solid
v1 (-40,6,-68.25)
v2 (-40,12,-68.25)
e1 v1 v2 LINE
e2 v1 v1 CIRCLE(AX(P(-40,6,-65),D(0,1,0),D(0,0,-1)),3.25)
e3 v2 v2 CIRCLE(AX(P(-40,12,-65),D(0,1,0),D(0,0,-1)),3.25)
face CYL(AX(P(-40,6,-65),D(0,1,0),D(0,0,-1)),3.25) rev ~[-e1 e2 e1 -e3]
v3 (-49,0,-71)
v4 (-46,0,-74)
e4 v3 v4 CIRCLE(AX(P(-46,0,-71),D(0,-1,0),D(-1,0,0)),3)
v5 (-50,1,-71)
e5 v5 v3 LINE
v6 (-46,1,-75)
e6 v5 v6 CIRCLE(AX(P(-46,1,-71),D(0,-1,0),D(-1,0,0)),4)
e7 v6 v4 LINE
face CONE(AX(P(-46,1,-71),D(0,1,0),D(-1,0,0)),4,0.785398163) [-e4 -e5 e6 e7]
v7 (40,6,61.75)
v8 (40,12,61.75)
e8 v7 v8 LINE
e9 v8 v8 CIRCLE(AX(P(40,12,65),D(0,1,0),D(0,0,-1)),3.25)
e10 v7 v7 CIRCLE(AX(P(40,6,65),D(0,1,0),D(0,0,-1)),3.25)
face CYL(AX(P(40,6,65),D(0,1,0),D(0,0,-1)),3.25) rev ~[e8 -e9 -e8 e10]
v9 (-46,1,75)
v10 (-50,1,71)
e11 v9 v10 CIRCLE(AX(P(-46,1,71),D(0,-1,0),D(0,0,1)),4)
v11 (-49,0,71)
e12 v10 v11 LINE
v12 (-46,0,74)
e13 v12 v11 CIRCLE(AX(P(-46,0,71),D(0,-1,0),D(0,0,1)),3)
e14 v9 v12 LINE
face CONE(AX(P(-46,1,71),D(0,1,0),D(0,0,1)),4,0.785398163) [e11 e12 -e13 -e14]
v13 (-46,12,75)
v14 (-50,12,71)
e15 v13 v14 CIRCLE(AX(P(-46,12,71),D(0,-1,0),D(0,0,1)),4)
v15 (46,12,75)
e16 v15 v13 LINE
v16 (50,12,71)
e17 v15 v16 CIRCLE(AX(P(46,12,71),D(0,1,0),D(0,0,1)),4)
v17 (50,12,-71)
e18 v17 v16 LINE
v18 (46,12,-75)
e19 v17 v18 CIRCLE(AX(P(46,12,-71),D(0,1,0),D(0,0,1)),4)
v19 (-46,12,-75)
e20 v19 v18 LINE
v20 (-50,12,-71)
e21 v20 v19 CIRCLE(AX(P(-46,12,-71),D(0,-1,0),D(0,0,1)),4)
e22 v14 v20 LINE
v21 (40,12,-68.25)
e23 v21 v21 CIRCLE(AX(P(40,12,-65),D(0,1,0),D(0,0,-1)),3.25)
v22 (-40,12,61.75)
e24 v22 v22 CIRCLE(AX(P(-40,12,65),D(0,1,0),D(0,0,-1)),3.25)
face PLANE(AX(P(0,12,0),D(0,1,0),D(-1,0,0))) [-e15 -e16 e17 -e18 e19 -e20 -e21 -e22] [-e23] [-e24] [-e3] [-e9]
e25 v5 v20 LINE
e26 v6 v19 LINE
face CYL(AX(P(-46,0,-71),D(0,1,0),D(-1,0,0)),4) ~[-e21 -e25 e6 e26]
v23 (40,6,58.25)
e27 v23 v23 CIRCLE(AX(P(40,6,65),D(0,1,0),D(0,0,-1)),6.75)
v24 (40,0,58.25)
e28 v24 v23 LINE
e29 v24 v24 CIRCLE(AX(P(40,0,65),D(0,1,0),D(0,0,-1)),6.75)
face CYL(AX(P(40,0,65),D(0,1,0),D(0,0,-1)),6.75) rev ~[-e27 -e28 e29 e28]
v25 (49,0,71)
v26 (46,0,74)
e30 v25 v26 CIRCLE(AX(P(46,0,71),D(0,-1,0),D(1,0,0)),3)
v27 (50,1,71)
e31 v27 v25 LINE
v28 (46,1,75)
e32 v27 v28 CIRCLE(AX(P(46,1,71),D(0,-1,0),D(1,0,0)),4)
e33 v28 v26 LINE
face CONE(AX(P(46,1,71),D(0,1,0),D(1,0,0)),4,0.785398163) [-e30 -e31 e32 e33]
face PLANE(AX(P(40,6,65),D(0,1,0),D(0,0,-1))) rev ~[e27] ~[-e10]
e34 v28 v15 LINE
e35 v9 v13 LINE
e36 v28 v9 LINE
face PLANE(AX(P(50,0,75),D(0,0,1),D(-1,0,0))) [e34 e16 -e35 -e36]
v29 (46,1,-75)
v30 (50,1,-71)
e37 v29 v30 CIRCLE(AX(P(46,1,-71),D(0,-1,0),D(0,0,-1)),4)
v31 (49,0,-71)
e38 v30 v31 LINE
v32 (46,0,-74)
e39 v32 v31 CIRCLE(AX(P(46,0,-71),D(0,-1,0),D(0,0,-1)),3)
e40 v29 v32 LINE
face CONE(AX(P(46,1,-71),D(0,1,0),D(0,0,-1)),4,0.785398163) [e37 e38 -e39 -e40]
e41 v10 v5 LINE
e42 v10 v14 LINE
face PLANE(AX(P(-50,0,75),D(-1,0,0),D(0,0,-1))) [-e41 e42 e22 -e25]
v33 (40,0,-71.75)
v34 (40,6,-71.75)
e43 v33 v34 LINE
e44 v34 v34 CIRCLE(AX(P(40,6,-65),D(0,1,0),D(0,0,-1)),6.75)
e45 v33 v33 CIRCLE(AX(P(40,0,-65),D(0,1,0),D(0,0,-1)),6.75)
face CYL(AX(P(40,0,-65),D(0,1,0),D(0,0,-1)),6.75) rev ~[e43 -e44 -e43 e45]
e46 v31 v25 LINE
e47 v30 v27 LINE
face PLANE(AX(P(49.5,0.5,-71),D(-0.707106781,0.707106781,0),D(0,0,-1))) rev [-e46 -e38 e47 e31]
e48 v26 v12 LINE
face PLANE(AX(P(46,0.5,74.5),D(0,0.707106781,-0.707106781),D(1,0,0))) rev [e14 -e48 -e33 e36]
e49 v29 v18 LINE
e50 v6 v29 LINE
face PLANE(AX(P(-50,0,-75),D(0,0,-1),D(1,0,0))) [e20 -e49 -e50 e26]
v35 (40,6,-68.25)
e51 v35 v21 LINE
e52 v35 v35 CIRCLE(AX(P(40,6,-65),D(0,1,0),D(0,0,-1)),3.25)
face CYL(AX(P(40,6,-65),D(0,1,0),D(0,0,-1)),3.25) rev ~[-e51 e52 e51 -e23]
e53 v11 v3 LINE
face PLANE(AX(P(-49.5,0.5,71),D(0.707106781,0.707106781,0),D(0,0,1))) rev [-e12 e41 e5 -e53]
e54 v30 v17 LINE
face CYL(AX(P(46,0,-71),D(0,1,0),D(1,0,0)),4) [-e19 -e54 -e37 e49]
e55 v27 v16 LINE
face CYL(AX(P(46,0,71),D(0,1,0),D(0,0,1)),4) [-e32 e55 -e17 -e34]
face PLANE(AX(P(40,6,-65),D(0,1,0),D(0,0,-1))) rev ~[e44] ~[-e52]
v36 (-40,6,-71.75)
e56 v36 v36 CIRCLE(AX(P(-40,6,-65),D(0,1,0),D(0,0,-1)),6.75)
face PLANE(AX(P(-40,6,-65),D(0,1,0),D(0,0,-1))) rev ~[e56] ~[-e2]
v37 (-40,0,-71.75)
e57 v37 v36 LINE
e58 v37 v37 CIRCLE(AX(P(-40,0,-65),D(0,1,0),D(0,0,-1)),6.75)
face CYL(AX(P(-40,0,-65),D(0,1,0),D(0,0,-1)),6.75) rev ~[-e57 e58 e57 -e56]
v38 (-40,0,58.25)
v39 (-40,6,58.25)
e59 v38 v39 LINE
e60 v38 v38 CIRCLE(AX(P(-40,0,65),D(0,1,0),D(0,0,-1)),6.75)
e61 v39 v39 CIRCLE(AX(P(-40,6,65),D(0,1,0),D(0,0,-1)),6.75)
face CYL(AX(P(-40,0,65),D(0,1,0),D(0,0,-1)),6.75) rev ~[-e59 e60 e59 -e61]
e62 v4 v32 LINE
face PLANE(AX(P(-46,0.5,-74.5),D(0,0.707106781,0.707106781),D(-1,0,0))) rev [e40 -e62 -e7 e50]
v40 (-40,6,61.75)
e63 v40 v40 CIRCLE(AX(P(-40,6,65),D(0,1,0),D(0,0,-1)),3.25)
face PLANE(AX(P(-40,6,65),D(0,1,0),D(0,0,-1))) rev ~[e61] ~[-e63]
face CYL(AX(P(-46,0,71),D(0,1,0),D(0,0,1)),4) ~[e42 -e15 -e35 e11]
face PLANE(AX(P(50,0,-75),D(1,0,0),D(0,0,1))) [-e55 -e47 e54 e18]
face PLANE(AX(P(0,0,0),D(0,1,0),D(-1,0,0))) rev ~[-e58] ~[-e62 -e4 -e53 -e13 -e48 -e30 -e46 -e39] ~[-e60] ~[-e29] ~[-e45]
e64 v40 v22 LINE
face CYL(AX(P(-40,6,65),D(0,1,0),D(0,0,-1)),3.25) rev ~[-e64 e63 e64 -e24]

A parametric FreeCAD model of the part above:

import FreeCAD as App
import Part
import Sketcher
from FreeCAD import Vector
Q = App.Units.Quantity


def edges_at(feature, points):
    """Names of the edges that pass closest to the given points."""
    edges = feature.Shape.Edges
    near = lambda p: min(range(len(edges)), key=lambda i: edges[i].distToShape(Part.Vertex(*p))[0])
    return sorted({f"Edge{near(p) + 1}" for p in points})

doc = App.newDocument("Part")
body = doc.addObject("PartDesign::Body", "Body")

# Sketch on XZ plane
sketch1 = body.newObject("Sketcher::SketchObject", "Sketch")
sketch1.AttachmentSupport = (doc.getObject("XZ_Plane"), [""])
sketch1.MapMode = "FlatFace"
sketch1.addGeometry(Part.LineSegment(Vector(-50, 75, 0), Vector(50, 75, 0)), False)
sketch1.addGeometry(Part.LineSegment(Vector(50, 75, 0), Vector(50, -75, 0)), False)
sketch1.addGeometry(Part.LineSegment(Vector(50, -75, 0), Vector(-50, -75, 0)), False)
sketch1.addGeometry(Part.LineSegment(Vector(-50, -75, 0), Vector(-50, 75, 0)), False)
sketch1.addConstraint(Sketcher.Constraint("Coincident", 0, 2, 1, 1))
sketch1.addConstraint(Sketcher.Constraint("Coincident", 1, 2, 2, 1))
sketch1.addConstraint(Sketcher.Constraint("Coincident", 2, 2, 3, 1))
sketch1.addConstraint(Sketcher.Constraint("Coincident", 3, 2, 0, 1))
sketch1.addConstraint(Sketcher.Constraint("Horizontal", 0))
sketch1.addConstraint(Sketcher.Constraint("Vertical", 1))
sketch1.addConstraint(Sketcher.Constraint("Horizontal", 2))
sketch1.addConstraint(Sketcher.Constraint("Vertical", 3))
sketch1.addConstraint(Sketcher.Constraint("Symmetric", 0, 2, 2, 2, -1, 1))
sketch1.addConstraint(Sketcher.Constraint("DistanceX", 0, 1, 0, 2, Q("100 mm")))
sketch1.addConstraint(Sketcher.Constraint("DistanceY", 1, 2, 1, 1, Q("150 mm")))
pad1 = body.newObject("PartDesign::Pad", "Pad")
pad1.Profile = sketch1
pad1.Length = 12
pad1.Reversed = True

# Sketch on XZ plane
sketch2 = body.newObject("Sketcher::SketchObject", "Sketch001")
sketch2.AttachmentSupport = (doc.getObject("XZ_Plane"), [""])
sketch2.MapMode = "FlatFace"
sketch2.addGeometry(Part.Circle(Vector(40, 65, 0), Vector(0, 0, 1), 3.25), False)
sketch2.addGeometry(Part.Circle(Vector(40, -65, 0), Vector(0, 0, 1), 3.25), False)
sketch2.addGeometry(Part.Circle(Vector(-40, 65, 0), Vector(0, 0, 1), 3.25), False)
sketch2.addGeometry(Part.Circle(Vector(-40, -65, 0), Vector(0, 0, 1), 3.25), False)
sketch2.addConstraint(Sketcher.Constraint("Equal", 0, 1))
sketch2.addConstraint(Sketcher.Constraint("Equal", 1, 2))
sketch2.addConstraint(Sketcher.Constraint("Equal", 2, 3))
sketch2.addConstraint(Sketcher.Constraint("Symmetric", 1, 3, 2, 3, -1, 1))
sketch2.addConstraint(Sketcher.Constraint("Symmetric", 0, 3, 3, 3, -1, 1))
sketch2.addConstraint(Sketcher.Constraint("Symmetric", 0, 3, 2, 3, -2))
sketch2.addConstraint(Sketcher.Constraint("Diameter", 0, Q("6.5 mm")))
sketch2.addConstraint(Sketcher.Constraint("DistanceX", -1, 1, 0, 3, Q("40 mm")))
sketch2.addConstraint(Sketcher.Constraint("DistanceY", -1, 1, 0, 3, Q("65 mm")))
doc.recompute()
hole = body.newObject("PartDesign::Hole", "Hole")
hole.Profile = sketch2
hole.ThreadType = "None"
hole.Diameter = 6.5
hole.DepthType = "ThroughAll"
hole.HoleCutType = "Counterbore"
hole.HoleCutDiameter = 13.5
hole.HoleCutDepth = 6
doc.recompute()

fillet = body.newObject("PartDesign::Fillet", "Fillet")
fillet.Base = (hole, edges_at(hole, [
    (50, 6, 75),
    (50, 6, -75),
    (-50, 6, -75),
    (-50, 6, 75),
]))
fillet.Radius = 4
doc.recompute()

chamfer = body.newObject("PartDesign::Chamfer", "Chamfer")
chamfer.Base = (fillet, edges_at(fillet, [
    (0, 0, 75),
    (48.828, 0, 73.828),
    (50, 0, 0),
    (48.828, 0, -73.828),
    (0, 0, -75),
    (-48.828, 0, -73.828),
    (-50, 0, 0),
    (-48.828, 0, 73.828),
]))
chamfer.Size = 1

doc.recompute()
